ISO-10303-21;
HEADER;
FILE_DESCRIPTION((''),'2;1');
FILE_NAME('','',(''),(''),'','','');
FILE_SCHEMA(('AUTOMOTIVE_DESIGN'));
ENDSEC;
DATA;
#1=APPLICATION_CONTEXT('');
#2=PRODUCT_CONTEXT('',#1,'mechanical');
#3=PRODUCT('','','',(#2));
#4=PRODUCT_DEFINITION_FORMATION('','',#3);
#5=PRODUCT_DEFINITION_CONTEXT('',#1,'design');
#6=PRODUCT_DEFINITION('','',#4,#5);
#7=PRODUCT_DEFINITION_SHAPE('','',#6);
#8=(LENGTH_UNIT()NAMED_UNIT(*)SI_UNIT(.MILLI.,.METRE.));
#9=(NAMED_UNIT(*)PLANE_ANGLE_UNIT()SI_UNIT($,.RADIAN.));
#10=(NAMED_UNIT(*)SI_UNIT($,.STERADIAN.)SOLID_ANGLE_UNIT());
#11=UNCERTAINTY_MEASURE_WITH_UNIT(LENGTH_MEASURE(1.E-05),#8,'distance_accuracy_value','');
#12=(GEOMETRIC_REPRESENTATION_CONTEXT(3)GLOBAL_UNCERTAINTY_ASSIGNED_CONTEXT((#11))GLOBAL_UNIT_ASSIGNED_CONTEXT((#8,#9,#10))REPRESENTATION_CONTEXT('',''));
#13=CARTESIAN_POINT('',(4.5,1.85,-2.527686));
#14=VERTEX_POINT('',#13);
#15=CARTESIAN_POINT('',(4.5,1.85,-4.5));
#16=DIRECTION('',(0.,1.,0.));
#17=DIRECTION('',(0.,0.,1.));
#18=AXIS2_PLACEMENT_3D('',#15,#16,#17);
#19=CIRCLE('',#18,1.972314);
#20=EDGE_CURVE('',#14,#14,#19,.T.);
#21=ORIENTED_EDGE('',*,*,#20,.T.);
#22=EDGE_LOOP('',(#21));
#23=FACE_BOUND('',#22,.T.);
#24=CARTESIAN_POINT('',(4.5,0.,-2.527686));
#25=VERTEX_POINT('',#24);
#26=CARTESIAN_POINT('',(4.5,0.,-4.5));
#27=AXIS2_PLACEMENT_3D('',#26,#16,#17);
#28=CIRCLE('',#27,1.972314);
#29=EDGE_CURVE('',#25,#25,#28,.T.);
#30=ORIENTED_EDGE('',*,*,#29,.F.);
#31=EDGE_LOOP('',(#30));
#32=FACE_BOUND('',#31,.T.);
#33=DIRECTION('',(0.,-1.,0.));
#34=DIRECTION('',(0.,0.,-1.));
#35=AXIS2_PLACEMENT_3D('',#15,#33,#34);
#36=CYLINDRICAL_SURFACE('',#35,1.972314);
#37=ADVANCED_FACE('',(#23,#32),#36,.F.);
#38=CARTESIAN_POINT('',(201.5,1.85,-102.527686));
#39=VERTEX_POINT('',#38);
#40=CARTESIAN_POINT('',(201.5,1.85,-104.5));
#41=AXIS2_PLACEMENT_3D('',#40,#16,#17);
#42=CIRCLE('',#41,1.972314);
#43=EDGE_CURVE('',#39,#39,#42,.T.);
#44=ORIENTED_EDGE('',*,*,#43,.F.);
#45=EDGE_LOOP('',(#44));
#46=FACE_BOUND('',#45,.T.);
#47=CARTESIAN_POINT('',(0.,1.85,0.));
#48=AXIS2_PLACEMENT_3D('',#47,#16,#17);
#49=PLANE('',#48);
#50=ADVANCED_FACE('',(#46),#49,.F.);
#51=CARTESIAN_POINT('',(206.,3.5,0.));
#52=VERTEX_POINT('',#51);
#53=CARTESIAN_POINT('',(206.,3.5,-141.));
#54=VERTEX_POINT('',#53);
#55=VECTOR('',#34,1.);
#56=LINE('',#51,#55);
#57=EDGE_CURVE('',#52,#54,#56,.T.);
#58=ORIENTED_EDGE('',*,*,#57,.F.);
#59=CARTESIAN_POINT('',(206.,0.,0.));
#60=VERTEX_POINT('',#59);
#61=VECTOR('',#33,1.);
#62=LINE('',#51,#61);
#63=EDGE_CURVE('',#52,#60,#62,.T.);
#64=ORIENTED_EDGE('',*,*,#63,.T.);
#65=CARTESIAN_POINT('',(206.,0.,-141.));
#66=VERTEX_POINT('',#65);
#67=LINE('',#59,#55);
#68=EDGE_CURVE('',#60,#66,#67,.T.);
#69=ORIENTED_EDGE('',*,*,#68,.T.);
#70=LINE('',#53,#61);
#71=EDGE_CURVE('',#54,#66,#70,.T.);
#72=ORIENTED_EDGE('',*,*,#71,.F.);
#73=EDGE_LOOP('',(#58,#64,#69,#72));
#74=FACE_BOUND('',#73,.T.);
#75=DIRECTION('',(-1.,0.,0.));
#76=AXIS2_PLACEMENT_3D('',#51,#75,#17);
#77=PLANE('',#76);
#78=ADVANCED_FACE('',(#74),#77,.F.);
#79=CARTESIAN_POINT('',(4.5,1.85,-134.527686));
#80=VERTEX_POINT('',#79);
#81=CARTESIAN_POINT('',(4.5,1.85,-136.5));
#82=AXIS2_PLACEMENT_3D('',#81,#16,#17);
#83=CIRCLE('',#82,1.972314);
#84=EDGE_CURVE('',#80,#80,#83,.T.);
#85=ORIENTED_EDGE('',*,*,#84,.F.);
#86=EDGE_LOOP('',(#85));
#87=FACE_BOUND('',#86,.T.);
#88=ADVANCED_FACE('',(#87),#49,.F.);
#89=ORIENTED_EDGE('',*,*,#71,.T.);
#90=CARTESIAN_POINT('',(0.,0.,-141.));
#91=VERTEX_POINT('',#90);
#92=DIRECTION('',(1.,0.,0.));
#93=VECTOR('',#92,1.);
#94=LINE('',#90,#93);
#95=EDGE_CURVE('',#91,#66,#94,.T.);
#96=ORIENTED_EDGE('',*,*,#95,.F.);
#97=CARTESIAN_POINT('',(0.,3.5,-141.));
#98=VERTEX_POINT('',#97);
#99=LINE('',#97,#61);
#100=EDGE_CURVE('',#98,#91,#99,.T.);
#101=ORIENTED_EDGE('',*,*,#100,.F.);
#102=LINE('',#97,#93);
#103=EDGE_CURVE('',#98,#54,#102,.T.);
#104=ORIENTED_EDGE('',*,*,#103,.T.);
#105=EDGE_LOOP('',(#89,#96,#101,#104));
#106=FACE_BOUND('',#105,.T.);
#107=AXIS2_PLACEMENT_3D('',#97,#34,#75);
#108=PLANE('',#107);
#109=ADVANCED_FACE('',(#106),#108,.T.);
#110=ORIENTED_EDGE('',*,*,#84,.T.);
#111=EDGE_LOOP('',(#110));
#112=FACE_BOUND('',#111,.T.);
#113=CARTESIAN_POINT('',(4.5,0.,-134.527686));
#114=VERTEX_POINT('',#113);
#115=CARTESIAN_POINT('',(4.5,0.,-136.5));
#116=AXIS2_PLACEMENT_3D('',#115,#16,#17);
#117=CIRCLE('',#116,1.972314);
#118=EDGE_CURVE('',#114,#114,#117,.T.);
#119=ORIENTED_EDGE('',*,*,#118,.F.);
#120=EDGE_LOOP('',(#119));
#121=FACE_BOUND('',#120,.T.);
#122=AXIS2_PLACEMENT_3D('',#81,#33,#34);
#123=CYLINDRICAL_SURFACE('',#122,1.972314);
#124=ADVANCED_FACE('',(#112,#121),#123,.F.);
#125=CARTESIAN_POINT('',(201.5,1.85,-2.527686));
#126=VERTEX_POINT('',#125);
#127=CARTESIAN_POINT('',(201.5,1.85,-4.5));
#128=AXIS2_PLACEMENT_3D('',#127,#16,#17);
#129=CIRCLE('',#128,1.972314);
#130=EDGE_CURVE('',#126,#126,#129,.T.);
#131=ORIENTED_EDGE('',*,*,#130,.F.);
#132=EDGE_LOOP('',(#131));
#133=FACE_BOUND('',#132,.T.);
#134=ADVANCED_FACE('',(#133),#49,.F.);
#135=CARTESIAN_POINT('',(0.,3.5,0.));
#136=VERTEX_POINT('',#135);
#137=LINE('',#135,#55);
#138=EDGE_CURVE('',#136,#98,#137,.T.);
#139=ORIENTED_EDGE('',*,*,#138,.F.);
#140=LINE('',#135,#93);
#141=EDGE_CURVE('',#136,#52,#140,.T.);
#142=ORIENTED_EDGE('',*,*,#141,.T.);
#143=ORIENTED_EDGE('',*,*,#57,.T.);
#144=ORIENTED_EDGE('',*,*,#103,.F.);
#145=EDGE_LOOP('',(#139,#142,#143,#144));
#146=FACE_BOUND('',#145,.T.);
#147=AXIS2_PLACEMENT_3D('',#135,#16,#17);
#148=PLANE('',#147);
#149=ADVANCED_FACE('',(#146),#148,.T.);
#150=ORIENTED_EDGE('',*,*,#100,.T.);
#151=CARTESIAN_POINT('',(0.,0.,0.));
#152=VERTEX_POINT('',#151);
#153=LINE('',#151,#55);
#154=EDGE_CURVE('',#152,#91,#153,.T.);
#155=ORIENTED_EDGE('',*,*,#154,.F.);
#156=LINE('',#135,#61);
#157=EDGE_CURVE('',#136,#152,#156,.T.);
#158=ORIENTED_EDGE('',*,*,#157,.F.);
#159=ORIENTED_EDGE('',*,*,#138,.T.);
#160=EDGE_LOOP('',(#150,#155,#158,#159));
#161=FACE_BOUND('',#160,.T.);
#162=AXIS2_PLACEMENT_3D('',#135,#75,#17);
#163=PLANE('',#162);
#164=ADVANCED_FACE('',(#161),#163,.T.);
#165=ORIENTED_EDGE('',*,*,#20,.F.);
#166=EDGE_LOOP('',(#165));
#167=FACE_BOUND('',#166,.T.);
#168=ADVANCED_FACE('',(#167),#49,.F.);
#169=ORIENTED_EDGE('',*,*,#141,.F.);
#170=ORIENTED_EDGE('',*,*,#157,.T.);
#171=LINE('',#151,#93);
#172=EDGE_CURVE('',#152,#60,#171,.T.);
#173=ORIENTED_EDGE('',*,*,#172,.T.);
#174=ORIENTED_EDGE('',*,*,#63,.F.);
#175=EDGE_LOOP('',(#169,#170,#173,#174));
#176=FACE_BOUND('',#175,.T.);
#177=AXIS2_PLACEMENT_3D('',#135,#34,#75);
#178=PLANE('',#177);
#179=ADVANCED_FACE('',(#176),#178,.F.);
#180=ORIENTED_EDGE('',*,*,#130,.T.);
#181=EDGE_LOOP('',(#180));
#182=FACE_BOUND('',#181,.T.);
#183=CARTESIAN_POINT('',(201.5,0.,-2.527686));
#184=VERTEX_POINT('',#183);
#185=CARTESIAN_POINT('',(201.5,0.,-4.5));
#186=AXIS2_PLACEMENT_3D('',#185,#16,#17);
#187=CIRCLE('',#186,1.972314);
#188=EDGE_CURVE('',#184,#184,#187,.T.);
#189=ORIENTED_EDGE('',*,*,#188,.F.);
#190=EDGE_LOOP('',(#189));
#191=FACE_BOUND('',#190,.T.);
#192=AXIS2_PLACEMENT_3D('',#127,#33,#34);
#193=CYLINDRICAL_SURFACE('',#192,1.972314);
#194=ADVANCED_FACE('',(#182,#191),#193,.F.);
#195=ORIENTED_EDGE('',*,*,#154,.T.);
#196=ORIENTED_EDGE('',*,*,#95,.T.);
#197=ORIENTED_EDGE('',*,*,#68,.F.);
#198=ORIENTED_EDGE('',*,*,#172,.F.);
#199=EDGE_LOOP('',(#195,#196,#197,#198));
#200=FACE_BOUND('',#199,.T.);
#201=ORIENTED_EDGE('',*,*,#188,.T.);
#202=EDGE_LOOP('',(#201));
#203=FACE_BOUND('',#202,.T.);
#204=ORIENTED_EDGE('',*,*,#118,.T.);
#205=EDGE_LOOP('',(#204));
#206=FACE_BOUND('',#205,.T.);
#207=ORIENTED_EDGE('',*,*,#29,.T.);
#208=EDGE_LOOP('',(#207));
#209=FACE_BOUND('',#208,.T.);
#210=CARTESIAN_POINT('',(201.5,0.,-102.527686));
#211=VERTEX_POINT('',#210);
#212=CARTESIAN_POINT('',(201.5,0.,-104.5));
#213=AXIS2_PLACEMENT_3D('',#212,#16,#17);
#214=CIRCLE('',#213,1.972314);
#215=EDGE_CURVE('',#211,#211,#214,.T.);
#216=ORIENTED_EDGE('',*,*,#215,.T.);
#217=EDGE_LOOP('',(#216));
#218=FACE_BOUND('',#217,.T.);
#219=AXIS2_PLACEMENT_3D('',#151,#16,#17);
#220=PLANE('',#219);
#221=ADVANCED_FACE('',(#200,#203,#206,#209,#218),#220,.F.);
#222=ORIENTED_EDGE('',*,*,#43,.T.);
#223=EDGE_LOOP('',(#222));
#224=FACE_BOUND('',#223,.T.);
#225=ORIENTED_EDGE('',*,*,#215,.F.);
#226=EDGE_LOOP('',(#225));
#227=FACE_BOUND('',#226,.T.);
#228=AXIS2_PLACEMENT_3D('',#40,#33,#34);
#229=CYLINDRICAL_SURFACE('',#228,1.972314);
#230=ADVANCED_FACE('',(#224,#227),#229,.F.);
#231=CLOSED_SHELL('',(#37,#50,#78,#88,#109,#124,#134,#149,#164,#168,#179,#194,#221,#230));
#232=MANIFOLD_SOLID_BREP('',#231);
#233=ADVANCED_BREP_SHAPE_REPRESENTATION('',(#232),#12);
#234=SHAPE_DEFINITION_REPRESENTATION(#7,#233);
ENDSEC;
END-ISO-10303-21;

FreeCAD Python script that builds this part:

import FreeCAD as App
import Part
import Sketcher

V = App.Vector
Q = App.Units.Quantity


def add_polygon(sketch, points):
    """Adds a closed chain of lines whose ends are joined by coincident constraints."""
    first, n = sketch.GeometryCount, len(points)
    for a, b in zip(points, points[1:] + points[:1]):
        sketch.addGeometry(Part.LineSegment(App.Vector(*a, 0), App.Vector(*b, 0)), False)
    for i in range(n):
        sketch.addConstraint(Sketcher.Constraint("Coincident", first + i, 2, first + (i + 1) % n, 1))

doc = App.newDocument("Part")
body = doc.addObject("PartDesign::Body", "Body")

sketch1 = body.newObject("Sketcher::SketchObject", "Sketch")
sketch1.AttachmentSupport = (doc.getObject("XZ_Plane"), [""])
sketch1.MapMode = "FlatFace"
add_polygon(sketch1, [(0, -141), (0, 0), (206, 0), (206, -141)])
sketch1.addConstraint(Sketcher.Constraint("Vertical", 0))
sketch1.addConstraint(Sketcher.Constraint("Horizontal", 1))
sketch1.addConstraint(Sketcher.Constraint("Vertical", 2))
sketch1.addConstraint(Sketcher.Constraint("Horizontal", 3))
sketch1.addConstraint(Sketcher.Constraint("Coincident", 0, 2, -1, 1))
sketch1.addConstraint(Sketcher.Constraint("DistanceX", 1, 1, 1, 2, Q("206 mm")))
sketch1.addConstraint(Sketcher.Constraint("DistanceY", 0, 1, 0, 2, Q("141 mm")))
pad1 = body.newObject("PartDesign::Pad", "Pad")
pad1.Profile = sketch1
pad1.Length = 3.5
pad1.Reversed = True

sketch2 = body.newObject("Sketcher::SketchObject", "Sketch001")
sketch2.AttachmentSupport = (doc.getObject("XZ_Plane"), [""])
sketch2.MapMode = "FlatFace"
sketch2.addGeometry(Part.Circle(V(4.5, -136.5, 0), V(0, 0, 1), 2), False)
sketch2.addGeometry(Part.Circle(V(4.5, -4.5, 0), V(0, 0, 1), 2), False)
sketch2.addGeometry(Part.Circle(V(201.5, -4.5, 0), V(0, 0, 1), 2), False)
sketch2.addGeometry(Part.Circle(V(201.5, -104.5, 0), V(0, 0, 1), 2), False)
sketch2.addConstraint(Sketcher.Constraint("Equal", 0, 1))
sketch2.addConstraint(Sketcher.Constraint("Equal", 1, 2))
sketch2.addConstraint(Sketcher.Constraint("Equal", 2, 3))
sketch2.addConstraint(Sketcher.Constraint("Horizontal", 1, 3, 2, 3))
sketch2.addConstraint(Sketcher.Constraint("Vertical", 0, 3, 1, 3))
sketch2.addConstraint(Sketcher.Constraint("Vertical", 2, 3, 3, 3))
sketch2.addConstraint(Sketcher.Constraint("DistanceY", 0, 3, 1, 3, Q("132 mm")))
sketch2.addConstraint(Sketcher.Constraint("DistanceX", 1, 3, 2, 3, Q("197 mm")))
sketch2.addConstraint(Sketcher.Constraint("DistanceY", 3, 3, 2, 3, Q("100 mm")))
sketch2.addConstraint(Sketcher.Constraint("DistanceX", -1, 1, 0, 3, Q("4.5 mm")))
sketch2.addConstraint(Sketcher.Constraint("DistanceY", 0, 3, -1, 1, Q("136.5 mm")))
sketch2.addConstraint(Sketcher.Constraint("Diameter", 0, Q("3.944628 mm")))
pocket1 = body.newObject("PartDesign::Pocket", "Pocket")
pocket1.Profile = sketch2
pocket1.Length = 1.85

doc.recompute()
